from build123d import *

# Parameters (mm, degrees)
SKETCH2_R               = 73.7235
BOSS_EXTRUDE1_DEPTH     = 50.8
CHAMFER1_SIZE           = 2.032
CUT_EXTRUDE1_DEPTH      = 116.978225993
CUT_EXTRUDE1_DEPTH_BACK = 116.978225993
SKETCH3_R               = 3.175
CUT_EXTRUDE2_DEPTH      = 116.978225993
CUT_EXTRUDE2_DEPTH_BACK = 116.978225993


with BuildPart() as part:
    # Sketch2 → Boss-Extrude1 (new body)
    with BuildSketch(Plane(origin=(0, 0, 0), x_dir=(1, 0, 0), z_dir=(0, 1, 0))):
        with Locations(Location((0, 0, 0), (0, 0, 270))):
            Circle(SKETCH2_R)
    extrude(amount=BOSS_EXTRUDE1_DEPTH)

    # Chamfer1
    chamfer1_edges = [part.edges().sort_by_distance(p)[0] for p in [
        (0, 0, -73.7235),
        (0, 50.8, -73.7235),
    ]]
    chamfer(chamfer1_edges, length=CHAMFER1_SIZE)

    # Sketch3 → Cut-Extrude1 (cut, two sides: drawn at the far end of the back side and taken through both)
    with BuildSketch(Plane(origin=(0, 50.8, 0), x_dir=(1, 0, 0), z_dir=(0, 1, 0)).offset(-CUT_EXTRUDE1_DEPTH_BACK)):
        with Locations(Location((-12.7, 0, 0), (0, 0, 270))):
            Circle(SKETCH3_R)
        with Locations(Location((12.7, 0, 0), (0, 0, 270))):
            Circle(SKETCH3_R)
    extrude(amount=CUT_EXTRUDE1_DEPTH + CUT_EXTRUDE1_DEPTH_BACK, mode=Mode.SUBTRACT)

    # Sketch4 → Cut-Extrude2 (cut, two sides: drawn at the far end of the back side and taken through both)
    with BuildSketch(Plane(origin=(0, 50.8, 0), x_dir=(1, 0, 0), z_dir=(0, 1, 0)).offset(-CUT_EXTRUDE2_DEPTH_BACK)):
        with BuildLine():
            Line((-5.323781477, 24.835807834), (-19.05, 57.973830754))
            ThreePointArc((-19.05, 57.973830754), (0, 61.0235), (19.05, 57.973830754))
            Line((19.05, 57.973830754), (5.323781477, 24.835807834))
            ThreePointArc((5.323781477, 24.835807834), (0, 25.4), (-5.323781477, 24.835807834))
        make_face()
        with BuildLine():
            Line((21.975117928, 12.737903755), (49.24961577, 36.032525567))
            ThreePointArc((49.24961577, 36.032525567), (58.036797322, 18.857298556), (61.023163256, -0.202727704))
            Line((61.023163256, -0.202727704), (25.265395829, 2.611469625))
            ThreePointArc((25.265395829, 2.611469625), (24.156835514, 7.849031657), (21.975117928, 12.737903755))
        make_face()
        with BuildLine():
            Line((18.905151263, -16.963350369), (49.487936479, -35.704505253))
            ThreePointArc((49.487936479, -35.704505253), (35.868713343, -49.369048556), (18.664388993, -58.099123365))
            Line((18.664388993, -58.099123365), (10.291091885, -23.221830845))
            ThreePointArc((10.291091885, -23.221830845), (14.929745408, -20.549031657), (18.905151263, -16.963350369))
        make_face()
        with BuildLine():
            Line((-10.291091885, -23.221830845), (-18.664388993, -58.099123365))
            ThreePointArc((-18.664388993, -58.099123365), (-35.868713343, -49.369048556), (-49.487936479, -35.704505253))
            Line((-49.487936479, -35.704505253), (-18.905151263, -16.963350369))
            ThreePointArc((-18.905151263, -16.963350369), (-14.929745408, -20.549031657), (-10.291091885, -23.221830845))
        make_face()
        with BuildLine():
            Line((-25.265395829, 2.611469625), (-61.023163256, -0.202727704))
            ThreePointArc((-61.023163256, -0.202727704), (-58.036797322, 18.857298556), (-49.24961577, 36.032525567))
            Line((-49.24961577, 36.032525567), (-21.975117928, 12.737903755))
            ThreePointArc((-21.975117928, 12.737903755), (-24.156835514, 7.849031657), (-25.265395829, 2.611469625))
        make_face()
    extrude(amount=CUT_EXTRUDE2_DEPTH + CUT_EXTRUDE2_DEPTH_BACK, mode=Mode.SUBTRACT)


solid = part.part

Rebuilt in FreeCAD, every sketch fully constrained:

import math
import FreeCAD as App
import Part
import Sketcher

V = App.Vector
Q = App.Units.Quantity


def edges_at(feature, points):
    """Names of the edges that pass closest to the given points."""
    edges = feature.Shape.Edges
    near = lambda p: min(range(len(edges)), key=lambda i: edges[i].distToShape(Part.Vertex(*p))[0])
    return sorted({f"Edge{near(p) + 1}" for p in points})

doc = App.newDocument("Part")
body = doc.addObject("PartDesign::Body", "Body")

sketch1 = doc.addObject("Sketcher::SketchObject", "Sketch")
body.addObject(sketch1)
sketch1.AttachmentSupport = (doc.XZ_Plane, [""])
sketch1.MapMode = "FlatFace"
sketch1.addGeometry(Part.Circle(V(0, 0, 0), V(0, 0, 1), 74), False)
sketch1.addConstraint([
    Sketcher.Constraint("Coincident", 0, 3, -1, 1),
    Sketcher.Constraint("Diameter", 0, Q("5.805 in")),
])
pad1 = doc.addObject("PartDesign::Pad", "Pad")
body.addObject(pad1)
pad1.Profile = sketch1
pad1.Length = Q("2 in")
pad1.Reversed = True
doc.recompute()

chamfer = doc.addObject("PartDesign::Chamfer", "Chamfer")
body.addObject(chamfer)
chamfer.Base = (pad1, edges_at(pad1, [(0, 0, -73.724), (0, 50.8, -73.724)]))
chamfer.Size = Q("0.08 in")

sketch2 = doc.addObject("Sketcher::SketchObject", "Sketch001")
body.addObject(sketch2)
sketch2.AttachmentSupport = (doc.XZ_Plane, [""])
sketch2.MapMode = "FlatFace"
sketch2.AttachmentOffset = App.Placement(V(0, 0, -2 * 25.4), App.Rotation())
sketch2.addGeometry([
    Part.Circle(V(-12.7, 0, 0), V(0, 0, 1), 3.2),
    Part.Circle(V(12.7, 0, 0), V(0, 0, 1), 3.2),
], False)
sketch2.addConstraint([
    Sketcher.Constraint("Equal", 0, 1),
    Sketcher.Constraint("Symmetric", 0, 3, 1, 3, -1, 1),
    Sketcher.Constraint("PointOnObject", 0, 3, -1),
    Sketcher.Constraint("Diameter", 0, Q("0.25 in")),
    Sketcher.Constraint("DistanceX", 0, 3, 1, 3, Q("1 in")),
])
pocket1 = doc.addObject("PartDesign::Pocket", "Pocket")
body.addObject(pocket1)
pocket1.Profile = sketch2
pocket1.Type = "ThroughAll"
pocket1.Midplane = True

sketch3 = doc.addObject("Sketcher::SketchObject", "Sketch002")
body.addObject(sketch3)
sketch3.AttachmentSupport = (doc.XZ_Plane, [""])
sketch3.MapMode = "FlatFace"
sketch3.AttachmentOffset = App.Placement(V(0, 0, -2 * 25.4), App.Rotation())
sketch3.addGeometry([
    Part.LineSegment(V(-19, -58, 0), V(-5, -25, 0)),
    Part.ArcOfCircle(Part.Circle(V(0, 0, 0), V(0, 0, 1), 25), math.radians(-102), math.radians(-78)),
    Part.LineSegment(V(5, -25, 0), V(19, -58, 0)),
    Part.ArcOfCircle(Part.Circle(V(0, 0, 0), V(0, 0, 1), 61), math.radians(-108), math.radians(-72)),
    Part.LineSegment(V(49, -36, 0), V(22, -13, 0)),
    Part.ArcOfCircle(Part.Circle(V(0, 0, 0), V(0, 0, 1), 25), math.radians(-30), math.radians(-6)),
    Part.LineSegment(V(25, -3, 0), V(61, 0, 0)),
    Part.ArcOfCircle(Part.Circle(V(0, 0, 0), V(0, 0, 1), 61), math.radians(-36), math.radians(0)),
    Part.LineSegment(V(49, 36, 0), V(19, 17, 0)),
    Part.ArcOfCircle(Part.Circle(V(0, 0, 0), V(0, 0, 1), 25), math.radians(42), math.radians(66)),
    Part.LineSegment(V(10, 23, 0), V(19, 58, 0)),
    Part.ArcOfCircle(Part.Circle(V(0, 0, 0), V(0, 0, 1), 61), math.radians(36), math.radians(72)),
    Part.LineSegment(V(-19, 58, 0), V(-10, 23, 0)),
    Part.ArcOfCircle(Part.Circle(V(0, 0, 0), V(0, 0, 1), 25), math.radians(114), math.radians(138)),
    Part.LineSegment(V(-19, 17, 0), V(-49, 36, 0)),
    Part.ArcOfCircle(Part.Circle(V(0, 0, 0), V(0, 0, 1), 61), math.radians(108), math.radians(144)),
    Part.LineSegment(V(-61, 0, 0), V(-25, -3, 0)),
    Part.ArcOfCircle(Part.Circle(V(0, 0, 0), V(0, 0, 1), 25), math.radians(-174), math.radians(-150)),
    Part.LineSegment(V(-22, -13, 0), V(-49, -36, 0)),
    Part.ArcOfCircle(Part.Circle(V(0, 0, 0), V(0, 0, 1), 61), math.radians(180), math.radians(216)),
], False)
sketch3.addConstraint([
    Sketcher.Constraint("Coincident", 0, 2, 1, 1),
    Sketcher.Constraint("Coincident", 1, 2, 2, 1),
    Sketcher.Constraint("Coincident", 2, 2, 3, 2),
    Sketcher.Constraint("Coincident", 3, 1, 0, 1),
    Sketcher.Constraint("Coincident", 4, 2, 5, 1),
    Sketcher.Constraint("Coincident", 5, 2, 6, 1),
    Sketcher.Constraint("Coincident", 6, 2, 7, 2),
    Sketcher.Constraint("Coincident", 7, 1, 4, 1),
    Sketcher.Constraint("Coincident", 8, 2, 9, 1),
    Sketcher.Constraint("Coincident", 9, 2, 10, 1),
    Sketcher.Constraint("Coincident", 10, 2, 11, 2),
    Sketcher.Constraint("Coincident", 11, 1, 8, 1),
    Sketcher.Constraint("Coincident", 12, 2, 13, 1),
    Sketcher.Constraint("Coincident", 13, 2, 14, 1),
    Sketcher.Constraint("Coincident", 14, 2, 15, 2),
    Sketcher.Constraint("Coincident", 15, 1, 12, 1),
    Sketcher.Constraint("Coincident", 16, 2, 17, 1),
    Sketcher.Constraint("Coincident", 17, 2, 18, 1),
    Sketcher.Constraint("Coincident", 18, 2, 19, 2),
    Sketcher.Constraint("Coincident", 19, 1, 16, 1),
    Sketcher.Constraint("Coincident", 1, 3, -1, 1),
    Sketcher.Constraint("Coincident", 3, 3, -1, 1),
    Sketcher.Constraint("Coincident", 5, 3, -1, 1),
    Sketcher.Constraint("Coincident", 7, 3, -1, 1),
    Sketcher.Constraint("Coincident", 9, 3, -1, 1),
    Sketcher.Constraint("Coincident", 11, 3, -1, 1),
    Sketcher.Constraint("Coincident", 13, 3, -1, 1),
    Sketcher.Constraint("Coincident", 15, 3, -1, 1),
    Sketcher.Constraint("Coincident", 17, 3, -1, 1),
    Sketcher.Constraint("Coincident", 19, 3, -1, 1),
    Sketcher.Constraint("Equal", 1, 5),
    Sketcher.Constraint("Equal", 3, 7),
    Sketcher.Constraint("Equal", 5, 9),
    Sketcher.Constraint("Equal", 7, 11),
    Sketcher.Constraint("Equal", 9, 13),
    Sketcher.Constraint("Equal", 11, 15),
    Sketcher.Constraint("Equal", 13, 17),
    Sketcher.Constraint("Equal", 15, 19),
    Sketcher.Constraint("Horizontal", 0, 2, 1, 2),
    Sketcher.Constraint("Horizontal", 2, 2, 3, 1),
    Sketcher.Constraint("Horizontal", 9, 2, 12, 2),
    Sketcher.Constraint("Horizontal", 8, 2, 13, 2),
    Sketcher.Constraint("Horizontal", 11, 1, 14, 2),
    Sketcher.Constraint("Horizontal", 10, 2, 15, 1),
    Sketcher.Constraint("Horizontal", 5, 2, 16, 2),
    Sketcher.Constraint("Horizontal", 4, 2, 17, 2),
    Sketcher.Constraint("Horizontal", 7, 1, 18, 2),
    Sketcher.Constraint("Horizontal", 6, 2, 19, 1),
    Sketcher.Constraint("Equal", 2, 4),
    Sketcher.Constraint("Equal", 4, 6),
    Sketcher.Constraint("Equal", 6, 8),
    Sketcher.Constraint("Equal", 8, 10),
    Sketcher.Constraint("Radius", 1, Q("1 in")),
    Sketcher.Constraint("Angle", 0, Q("67.5 deg")),
    Sketcher.Constraint("Angle", 4, Q("139.5 deg")),
    Sketcher.Constraint("Angle", 6, Q("4.5 deg")),
    Sketcher.Constraint("Angle", 8, Q("-148.5 deg")),
    Sketcher.Constraint("Angle", 10, Q("76.5 deg")),
    Sketcher.Constraint("Radius", 3, Q("2.4025 in")),
    Sketcher.Constraint("DistanceX", 3, 1, 2, 2, Q("1.5 in")),
])
pocket2 = doc.addObject("PartDesign::Pocket", "Pocket001")
body.addObject(pocket2)
pocket2.Profile = sketch3
pocket2.Type = "ThroughAll"
pocket2.Midplane = True

doc.recompute()
